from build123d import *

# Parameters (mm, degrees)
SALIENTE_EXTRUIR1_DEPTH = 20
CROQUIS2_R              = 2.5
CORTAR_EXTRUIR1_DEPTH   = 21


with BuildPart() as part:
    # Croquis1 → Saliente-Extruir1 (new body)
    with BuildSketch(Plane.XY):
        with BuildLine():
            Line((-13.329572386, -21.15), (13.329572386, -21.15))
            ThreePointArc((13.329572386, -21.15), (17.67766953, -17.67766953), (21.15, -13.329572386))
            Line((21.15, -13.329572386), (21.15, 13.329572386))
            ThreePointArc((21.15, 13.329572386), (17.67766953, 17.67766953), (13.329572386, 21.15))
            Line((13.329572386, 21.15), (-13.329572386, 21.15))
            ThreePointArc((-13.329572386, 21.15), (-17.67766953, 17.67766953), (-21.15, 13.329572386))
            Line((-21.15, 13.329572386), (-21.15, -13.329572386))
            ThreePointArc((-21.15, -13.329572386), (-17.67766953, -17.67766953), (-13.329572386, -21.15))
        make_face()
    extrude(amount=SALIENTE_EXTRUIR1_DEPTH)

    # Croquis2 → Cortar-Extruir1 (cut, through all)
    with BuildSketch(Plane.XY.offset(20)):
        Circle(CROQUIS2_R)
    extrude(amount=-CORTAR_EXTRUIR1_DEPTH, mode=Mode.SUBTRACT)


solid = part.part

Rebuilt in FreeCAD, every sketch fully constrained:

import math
import FreeCAD as App
import Part
import Sketcher

V = App.Vector

doc = App.newDocument("Part")
body = doc.addObject("PartDesign::Body", "Body")

# Sketch on XY plane
sketch1 = doc.addObject("Sketcher::SketchObject", "Sketch")
body.addObject(sketch1)
sketch1.AttachmentSupport = (doc.XY_Plane, [""])
sketch1.MapMode = "FlatFace"
sketch1.addGeometry([
    Part.LineSegment(V(-13, -21, 0), V(13, -21, 0)),  # 0
    Part.ArcOfCircle(Part.Circle(V(0, 0, 0), V(0, 0, 1), 25), math.radians(-58), math.radians(-32)),  # 1
    Part.LineSegment(V(21, -13, 0), V(21, 13, 0)),  # 2
    Part.ArcOfCircle(Part.Circle(V(0, 0, 0), V(0, 0, 1), 25), math.radians(32), math.radians(58)),  # 3
    Part.LineSegment(V(13, 21, 0), V(-13, 21, 0)),  # 4
    Part.ArcOfCircle(Part.Circle(V(0, 0, 0), V(0, 0, 1), 25), math.radians(122), math.radians(148)),  # 5
    Part.LineSegment(V(-21, 13, 0), V(-21, -13, 0)),  # 6
    Part.ArcOfCircle(Part.Circle(V(0, 0, 0), V(0, 0, 1), 25), math.radians(-148), math.radians(-122)),  # 7
], False)
sketch1.addConstraint([
    Sketcher.Constraint("Coincident", 0, 2, 1, 1),
    Sketcher.Constraint("Coincident", 1, 2, 2, 1),
    Sketcher.Constraint("Coincident", 2, 2, 3, 1),
    Sketcher.Constraint("Coincident", 3, 2, 4, 1),
    Sketcher.Constraint("Coincident", 4, 2, 5, 1),
    Sketcher.Constraint("Coincident", 5, 2, 6, 1),
    Sketcher.Constraint("Coincident", 6, 2, 7, 1),
    Sketcher.Constraint("Coincident", 7, 2, 0, 1),
    Sketcher.Constraint("Horizontal", 0),
    Sketcher.Constraint("Vertical", 2),
    Sketcher.Constraint("Horizontal", 4),
    Sketcher.Constraint("Vertical", 6),
    Sketcher.Constraint("Coincident", 1, 3, -1, 1),
    Sketcher.Constraint("Coincident", 3, 3, -1, 1),
    Sketcher.Constraint("Coincident", 5, 3, -1, 1),
    Sketcher.Constraint("Coincident", 7, 3, -1, 1),
    Sketcher.Constraint("Equal", 1, 3),
    Sketcher.Constraint("Equal", 3, 5),
    Sketcher.Constraint("Equal", 5, 7),
    Sketcher.Constraint("Horizontal", 2, 2, 5, 2),
    Sketcher.Constraint("Vertical", 0, 2, 3, 2),
    Sketcher.Constraint("Equal", 4, 2),
    Sketcher.Constraint("Radius", 1, 25.0),
    Sketcher.Constraint("DistanceY", 0, 2, -1, 1, 21.15),
])
pad1 = doc.addObject("PartDesign::Pad", "Pad")
body.addObject(pad1)
pad1.Profile = sketch1
pad1.Length = 20

# Sketch on XY plane
sketch2 = doc.addObject("Sketcher::SketchObject", "Sketch001")
body.addObject(sketch2)
sketch2.AttachmentSupport = (doc.XY_Plane, [""])
sketch2.MapMode = "FlatFace"
sketch2.AttachmentOffset = App.Placement(V(0, 0, 20), App.Rotation())
sketch2.addGeometry(Part.Circle(V(0, 0, 0), V(0, 0, 1), 2.5), False)
sketch2.addConstraint([
    Sketcher.Constraint("Coincident", 0, 3, -1, 1),
    Sketcher.Constraint("Diameter", 0, 5.0),
])
pocket1 = doc.addObject("PartDesign::Pocket", "Pocket")
body.addObject(pocket1)
pocket1.Profile = sketch2
pocket1.Type = "ThroughAll"

doc.recompute()
